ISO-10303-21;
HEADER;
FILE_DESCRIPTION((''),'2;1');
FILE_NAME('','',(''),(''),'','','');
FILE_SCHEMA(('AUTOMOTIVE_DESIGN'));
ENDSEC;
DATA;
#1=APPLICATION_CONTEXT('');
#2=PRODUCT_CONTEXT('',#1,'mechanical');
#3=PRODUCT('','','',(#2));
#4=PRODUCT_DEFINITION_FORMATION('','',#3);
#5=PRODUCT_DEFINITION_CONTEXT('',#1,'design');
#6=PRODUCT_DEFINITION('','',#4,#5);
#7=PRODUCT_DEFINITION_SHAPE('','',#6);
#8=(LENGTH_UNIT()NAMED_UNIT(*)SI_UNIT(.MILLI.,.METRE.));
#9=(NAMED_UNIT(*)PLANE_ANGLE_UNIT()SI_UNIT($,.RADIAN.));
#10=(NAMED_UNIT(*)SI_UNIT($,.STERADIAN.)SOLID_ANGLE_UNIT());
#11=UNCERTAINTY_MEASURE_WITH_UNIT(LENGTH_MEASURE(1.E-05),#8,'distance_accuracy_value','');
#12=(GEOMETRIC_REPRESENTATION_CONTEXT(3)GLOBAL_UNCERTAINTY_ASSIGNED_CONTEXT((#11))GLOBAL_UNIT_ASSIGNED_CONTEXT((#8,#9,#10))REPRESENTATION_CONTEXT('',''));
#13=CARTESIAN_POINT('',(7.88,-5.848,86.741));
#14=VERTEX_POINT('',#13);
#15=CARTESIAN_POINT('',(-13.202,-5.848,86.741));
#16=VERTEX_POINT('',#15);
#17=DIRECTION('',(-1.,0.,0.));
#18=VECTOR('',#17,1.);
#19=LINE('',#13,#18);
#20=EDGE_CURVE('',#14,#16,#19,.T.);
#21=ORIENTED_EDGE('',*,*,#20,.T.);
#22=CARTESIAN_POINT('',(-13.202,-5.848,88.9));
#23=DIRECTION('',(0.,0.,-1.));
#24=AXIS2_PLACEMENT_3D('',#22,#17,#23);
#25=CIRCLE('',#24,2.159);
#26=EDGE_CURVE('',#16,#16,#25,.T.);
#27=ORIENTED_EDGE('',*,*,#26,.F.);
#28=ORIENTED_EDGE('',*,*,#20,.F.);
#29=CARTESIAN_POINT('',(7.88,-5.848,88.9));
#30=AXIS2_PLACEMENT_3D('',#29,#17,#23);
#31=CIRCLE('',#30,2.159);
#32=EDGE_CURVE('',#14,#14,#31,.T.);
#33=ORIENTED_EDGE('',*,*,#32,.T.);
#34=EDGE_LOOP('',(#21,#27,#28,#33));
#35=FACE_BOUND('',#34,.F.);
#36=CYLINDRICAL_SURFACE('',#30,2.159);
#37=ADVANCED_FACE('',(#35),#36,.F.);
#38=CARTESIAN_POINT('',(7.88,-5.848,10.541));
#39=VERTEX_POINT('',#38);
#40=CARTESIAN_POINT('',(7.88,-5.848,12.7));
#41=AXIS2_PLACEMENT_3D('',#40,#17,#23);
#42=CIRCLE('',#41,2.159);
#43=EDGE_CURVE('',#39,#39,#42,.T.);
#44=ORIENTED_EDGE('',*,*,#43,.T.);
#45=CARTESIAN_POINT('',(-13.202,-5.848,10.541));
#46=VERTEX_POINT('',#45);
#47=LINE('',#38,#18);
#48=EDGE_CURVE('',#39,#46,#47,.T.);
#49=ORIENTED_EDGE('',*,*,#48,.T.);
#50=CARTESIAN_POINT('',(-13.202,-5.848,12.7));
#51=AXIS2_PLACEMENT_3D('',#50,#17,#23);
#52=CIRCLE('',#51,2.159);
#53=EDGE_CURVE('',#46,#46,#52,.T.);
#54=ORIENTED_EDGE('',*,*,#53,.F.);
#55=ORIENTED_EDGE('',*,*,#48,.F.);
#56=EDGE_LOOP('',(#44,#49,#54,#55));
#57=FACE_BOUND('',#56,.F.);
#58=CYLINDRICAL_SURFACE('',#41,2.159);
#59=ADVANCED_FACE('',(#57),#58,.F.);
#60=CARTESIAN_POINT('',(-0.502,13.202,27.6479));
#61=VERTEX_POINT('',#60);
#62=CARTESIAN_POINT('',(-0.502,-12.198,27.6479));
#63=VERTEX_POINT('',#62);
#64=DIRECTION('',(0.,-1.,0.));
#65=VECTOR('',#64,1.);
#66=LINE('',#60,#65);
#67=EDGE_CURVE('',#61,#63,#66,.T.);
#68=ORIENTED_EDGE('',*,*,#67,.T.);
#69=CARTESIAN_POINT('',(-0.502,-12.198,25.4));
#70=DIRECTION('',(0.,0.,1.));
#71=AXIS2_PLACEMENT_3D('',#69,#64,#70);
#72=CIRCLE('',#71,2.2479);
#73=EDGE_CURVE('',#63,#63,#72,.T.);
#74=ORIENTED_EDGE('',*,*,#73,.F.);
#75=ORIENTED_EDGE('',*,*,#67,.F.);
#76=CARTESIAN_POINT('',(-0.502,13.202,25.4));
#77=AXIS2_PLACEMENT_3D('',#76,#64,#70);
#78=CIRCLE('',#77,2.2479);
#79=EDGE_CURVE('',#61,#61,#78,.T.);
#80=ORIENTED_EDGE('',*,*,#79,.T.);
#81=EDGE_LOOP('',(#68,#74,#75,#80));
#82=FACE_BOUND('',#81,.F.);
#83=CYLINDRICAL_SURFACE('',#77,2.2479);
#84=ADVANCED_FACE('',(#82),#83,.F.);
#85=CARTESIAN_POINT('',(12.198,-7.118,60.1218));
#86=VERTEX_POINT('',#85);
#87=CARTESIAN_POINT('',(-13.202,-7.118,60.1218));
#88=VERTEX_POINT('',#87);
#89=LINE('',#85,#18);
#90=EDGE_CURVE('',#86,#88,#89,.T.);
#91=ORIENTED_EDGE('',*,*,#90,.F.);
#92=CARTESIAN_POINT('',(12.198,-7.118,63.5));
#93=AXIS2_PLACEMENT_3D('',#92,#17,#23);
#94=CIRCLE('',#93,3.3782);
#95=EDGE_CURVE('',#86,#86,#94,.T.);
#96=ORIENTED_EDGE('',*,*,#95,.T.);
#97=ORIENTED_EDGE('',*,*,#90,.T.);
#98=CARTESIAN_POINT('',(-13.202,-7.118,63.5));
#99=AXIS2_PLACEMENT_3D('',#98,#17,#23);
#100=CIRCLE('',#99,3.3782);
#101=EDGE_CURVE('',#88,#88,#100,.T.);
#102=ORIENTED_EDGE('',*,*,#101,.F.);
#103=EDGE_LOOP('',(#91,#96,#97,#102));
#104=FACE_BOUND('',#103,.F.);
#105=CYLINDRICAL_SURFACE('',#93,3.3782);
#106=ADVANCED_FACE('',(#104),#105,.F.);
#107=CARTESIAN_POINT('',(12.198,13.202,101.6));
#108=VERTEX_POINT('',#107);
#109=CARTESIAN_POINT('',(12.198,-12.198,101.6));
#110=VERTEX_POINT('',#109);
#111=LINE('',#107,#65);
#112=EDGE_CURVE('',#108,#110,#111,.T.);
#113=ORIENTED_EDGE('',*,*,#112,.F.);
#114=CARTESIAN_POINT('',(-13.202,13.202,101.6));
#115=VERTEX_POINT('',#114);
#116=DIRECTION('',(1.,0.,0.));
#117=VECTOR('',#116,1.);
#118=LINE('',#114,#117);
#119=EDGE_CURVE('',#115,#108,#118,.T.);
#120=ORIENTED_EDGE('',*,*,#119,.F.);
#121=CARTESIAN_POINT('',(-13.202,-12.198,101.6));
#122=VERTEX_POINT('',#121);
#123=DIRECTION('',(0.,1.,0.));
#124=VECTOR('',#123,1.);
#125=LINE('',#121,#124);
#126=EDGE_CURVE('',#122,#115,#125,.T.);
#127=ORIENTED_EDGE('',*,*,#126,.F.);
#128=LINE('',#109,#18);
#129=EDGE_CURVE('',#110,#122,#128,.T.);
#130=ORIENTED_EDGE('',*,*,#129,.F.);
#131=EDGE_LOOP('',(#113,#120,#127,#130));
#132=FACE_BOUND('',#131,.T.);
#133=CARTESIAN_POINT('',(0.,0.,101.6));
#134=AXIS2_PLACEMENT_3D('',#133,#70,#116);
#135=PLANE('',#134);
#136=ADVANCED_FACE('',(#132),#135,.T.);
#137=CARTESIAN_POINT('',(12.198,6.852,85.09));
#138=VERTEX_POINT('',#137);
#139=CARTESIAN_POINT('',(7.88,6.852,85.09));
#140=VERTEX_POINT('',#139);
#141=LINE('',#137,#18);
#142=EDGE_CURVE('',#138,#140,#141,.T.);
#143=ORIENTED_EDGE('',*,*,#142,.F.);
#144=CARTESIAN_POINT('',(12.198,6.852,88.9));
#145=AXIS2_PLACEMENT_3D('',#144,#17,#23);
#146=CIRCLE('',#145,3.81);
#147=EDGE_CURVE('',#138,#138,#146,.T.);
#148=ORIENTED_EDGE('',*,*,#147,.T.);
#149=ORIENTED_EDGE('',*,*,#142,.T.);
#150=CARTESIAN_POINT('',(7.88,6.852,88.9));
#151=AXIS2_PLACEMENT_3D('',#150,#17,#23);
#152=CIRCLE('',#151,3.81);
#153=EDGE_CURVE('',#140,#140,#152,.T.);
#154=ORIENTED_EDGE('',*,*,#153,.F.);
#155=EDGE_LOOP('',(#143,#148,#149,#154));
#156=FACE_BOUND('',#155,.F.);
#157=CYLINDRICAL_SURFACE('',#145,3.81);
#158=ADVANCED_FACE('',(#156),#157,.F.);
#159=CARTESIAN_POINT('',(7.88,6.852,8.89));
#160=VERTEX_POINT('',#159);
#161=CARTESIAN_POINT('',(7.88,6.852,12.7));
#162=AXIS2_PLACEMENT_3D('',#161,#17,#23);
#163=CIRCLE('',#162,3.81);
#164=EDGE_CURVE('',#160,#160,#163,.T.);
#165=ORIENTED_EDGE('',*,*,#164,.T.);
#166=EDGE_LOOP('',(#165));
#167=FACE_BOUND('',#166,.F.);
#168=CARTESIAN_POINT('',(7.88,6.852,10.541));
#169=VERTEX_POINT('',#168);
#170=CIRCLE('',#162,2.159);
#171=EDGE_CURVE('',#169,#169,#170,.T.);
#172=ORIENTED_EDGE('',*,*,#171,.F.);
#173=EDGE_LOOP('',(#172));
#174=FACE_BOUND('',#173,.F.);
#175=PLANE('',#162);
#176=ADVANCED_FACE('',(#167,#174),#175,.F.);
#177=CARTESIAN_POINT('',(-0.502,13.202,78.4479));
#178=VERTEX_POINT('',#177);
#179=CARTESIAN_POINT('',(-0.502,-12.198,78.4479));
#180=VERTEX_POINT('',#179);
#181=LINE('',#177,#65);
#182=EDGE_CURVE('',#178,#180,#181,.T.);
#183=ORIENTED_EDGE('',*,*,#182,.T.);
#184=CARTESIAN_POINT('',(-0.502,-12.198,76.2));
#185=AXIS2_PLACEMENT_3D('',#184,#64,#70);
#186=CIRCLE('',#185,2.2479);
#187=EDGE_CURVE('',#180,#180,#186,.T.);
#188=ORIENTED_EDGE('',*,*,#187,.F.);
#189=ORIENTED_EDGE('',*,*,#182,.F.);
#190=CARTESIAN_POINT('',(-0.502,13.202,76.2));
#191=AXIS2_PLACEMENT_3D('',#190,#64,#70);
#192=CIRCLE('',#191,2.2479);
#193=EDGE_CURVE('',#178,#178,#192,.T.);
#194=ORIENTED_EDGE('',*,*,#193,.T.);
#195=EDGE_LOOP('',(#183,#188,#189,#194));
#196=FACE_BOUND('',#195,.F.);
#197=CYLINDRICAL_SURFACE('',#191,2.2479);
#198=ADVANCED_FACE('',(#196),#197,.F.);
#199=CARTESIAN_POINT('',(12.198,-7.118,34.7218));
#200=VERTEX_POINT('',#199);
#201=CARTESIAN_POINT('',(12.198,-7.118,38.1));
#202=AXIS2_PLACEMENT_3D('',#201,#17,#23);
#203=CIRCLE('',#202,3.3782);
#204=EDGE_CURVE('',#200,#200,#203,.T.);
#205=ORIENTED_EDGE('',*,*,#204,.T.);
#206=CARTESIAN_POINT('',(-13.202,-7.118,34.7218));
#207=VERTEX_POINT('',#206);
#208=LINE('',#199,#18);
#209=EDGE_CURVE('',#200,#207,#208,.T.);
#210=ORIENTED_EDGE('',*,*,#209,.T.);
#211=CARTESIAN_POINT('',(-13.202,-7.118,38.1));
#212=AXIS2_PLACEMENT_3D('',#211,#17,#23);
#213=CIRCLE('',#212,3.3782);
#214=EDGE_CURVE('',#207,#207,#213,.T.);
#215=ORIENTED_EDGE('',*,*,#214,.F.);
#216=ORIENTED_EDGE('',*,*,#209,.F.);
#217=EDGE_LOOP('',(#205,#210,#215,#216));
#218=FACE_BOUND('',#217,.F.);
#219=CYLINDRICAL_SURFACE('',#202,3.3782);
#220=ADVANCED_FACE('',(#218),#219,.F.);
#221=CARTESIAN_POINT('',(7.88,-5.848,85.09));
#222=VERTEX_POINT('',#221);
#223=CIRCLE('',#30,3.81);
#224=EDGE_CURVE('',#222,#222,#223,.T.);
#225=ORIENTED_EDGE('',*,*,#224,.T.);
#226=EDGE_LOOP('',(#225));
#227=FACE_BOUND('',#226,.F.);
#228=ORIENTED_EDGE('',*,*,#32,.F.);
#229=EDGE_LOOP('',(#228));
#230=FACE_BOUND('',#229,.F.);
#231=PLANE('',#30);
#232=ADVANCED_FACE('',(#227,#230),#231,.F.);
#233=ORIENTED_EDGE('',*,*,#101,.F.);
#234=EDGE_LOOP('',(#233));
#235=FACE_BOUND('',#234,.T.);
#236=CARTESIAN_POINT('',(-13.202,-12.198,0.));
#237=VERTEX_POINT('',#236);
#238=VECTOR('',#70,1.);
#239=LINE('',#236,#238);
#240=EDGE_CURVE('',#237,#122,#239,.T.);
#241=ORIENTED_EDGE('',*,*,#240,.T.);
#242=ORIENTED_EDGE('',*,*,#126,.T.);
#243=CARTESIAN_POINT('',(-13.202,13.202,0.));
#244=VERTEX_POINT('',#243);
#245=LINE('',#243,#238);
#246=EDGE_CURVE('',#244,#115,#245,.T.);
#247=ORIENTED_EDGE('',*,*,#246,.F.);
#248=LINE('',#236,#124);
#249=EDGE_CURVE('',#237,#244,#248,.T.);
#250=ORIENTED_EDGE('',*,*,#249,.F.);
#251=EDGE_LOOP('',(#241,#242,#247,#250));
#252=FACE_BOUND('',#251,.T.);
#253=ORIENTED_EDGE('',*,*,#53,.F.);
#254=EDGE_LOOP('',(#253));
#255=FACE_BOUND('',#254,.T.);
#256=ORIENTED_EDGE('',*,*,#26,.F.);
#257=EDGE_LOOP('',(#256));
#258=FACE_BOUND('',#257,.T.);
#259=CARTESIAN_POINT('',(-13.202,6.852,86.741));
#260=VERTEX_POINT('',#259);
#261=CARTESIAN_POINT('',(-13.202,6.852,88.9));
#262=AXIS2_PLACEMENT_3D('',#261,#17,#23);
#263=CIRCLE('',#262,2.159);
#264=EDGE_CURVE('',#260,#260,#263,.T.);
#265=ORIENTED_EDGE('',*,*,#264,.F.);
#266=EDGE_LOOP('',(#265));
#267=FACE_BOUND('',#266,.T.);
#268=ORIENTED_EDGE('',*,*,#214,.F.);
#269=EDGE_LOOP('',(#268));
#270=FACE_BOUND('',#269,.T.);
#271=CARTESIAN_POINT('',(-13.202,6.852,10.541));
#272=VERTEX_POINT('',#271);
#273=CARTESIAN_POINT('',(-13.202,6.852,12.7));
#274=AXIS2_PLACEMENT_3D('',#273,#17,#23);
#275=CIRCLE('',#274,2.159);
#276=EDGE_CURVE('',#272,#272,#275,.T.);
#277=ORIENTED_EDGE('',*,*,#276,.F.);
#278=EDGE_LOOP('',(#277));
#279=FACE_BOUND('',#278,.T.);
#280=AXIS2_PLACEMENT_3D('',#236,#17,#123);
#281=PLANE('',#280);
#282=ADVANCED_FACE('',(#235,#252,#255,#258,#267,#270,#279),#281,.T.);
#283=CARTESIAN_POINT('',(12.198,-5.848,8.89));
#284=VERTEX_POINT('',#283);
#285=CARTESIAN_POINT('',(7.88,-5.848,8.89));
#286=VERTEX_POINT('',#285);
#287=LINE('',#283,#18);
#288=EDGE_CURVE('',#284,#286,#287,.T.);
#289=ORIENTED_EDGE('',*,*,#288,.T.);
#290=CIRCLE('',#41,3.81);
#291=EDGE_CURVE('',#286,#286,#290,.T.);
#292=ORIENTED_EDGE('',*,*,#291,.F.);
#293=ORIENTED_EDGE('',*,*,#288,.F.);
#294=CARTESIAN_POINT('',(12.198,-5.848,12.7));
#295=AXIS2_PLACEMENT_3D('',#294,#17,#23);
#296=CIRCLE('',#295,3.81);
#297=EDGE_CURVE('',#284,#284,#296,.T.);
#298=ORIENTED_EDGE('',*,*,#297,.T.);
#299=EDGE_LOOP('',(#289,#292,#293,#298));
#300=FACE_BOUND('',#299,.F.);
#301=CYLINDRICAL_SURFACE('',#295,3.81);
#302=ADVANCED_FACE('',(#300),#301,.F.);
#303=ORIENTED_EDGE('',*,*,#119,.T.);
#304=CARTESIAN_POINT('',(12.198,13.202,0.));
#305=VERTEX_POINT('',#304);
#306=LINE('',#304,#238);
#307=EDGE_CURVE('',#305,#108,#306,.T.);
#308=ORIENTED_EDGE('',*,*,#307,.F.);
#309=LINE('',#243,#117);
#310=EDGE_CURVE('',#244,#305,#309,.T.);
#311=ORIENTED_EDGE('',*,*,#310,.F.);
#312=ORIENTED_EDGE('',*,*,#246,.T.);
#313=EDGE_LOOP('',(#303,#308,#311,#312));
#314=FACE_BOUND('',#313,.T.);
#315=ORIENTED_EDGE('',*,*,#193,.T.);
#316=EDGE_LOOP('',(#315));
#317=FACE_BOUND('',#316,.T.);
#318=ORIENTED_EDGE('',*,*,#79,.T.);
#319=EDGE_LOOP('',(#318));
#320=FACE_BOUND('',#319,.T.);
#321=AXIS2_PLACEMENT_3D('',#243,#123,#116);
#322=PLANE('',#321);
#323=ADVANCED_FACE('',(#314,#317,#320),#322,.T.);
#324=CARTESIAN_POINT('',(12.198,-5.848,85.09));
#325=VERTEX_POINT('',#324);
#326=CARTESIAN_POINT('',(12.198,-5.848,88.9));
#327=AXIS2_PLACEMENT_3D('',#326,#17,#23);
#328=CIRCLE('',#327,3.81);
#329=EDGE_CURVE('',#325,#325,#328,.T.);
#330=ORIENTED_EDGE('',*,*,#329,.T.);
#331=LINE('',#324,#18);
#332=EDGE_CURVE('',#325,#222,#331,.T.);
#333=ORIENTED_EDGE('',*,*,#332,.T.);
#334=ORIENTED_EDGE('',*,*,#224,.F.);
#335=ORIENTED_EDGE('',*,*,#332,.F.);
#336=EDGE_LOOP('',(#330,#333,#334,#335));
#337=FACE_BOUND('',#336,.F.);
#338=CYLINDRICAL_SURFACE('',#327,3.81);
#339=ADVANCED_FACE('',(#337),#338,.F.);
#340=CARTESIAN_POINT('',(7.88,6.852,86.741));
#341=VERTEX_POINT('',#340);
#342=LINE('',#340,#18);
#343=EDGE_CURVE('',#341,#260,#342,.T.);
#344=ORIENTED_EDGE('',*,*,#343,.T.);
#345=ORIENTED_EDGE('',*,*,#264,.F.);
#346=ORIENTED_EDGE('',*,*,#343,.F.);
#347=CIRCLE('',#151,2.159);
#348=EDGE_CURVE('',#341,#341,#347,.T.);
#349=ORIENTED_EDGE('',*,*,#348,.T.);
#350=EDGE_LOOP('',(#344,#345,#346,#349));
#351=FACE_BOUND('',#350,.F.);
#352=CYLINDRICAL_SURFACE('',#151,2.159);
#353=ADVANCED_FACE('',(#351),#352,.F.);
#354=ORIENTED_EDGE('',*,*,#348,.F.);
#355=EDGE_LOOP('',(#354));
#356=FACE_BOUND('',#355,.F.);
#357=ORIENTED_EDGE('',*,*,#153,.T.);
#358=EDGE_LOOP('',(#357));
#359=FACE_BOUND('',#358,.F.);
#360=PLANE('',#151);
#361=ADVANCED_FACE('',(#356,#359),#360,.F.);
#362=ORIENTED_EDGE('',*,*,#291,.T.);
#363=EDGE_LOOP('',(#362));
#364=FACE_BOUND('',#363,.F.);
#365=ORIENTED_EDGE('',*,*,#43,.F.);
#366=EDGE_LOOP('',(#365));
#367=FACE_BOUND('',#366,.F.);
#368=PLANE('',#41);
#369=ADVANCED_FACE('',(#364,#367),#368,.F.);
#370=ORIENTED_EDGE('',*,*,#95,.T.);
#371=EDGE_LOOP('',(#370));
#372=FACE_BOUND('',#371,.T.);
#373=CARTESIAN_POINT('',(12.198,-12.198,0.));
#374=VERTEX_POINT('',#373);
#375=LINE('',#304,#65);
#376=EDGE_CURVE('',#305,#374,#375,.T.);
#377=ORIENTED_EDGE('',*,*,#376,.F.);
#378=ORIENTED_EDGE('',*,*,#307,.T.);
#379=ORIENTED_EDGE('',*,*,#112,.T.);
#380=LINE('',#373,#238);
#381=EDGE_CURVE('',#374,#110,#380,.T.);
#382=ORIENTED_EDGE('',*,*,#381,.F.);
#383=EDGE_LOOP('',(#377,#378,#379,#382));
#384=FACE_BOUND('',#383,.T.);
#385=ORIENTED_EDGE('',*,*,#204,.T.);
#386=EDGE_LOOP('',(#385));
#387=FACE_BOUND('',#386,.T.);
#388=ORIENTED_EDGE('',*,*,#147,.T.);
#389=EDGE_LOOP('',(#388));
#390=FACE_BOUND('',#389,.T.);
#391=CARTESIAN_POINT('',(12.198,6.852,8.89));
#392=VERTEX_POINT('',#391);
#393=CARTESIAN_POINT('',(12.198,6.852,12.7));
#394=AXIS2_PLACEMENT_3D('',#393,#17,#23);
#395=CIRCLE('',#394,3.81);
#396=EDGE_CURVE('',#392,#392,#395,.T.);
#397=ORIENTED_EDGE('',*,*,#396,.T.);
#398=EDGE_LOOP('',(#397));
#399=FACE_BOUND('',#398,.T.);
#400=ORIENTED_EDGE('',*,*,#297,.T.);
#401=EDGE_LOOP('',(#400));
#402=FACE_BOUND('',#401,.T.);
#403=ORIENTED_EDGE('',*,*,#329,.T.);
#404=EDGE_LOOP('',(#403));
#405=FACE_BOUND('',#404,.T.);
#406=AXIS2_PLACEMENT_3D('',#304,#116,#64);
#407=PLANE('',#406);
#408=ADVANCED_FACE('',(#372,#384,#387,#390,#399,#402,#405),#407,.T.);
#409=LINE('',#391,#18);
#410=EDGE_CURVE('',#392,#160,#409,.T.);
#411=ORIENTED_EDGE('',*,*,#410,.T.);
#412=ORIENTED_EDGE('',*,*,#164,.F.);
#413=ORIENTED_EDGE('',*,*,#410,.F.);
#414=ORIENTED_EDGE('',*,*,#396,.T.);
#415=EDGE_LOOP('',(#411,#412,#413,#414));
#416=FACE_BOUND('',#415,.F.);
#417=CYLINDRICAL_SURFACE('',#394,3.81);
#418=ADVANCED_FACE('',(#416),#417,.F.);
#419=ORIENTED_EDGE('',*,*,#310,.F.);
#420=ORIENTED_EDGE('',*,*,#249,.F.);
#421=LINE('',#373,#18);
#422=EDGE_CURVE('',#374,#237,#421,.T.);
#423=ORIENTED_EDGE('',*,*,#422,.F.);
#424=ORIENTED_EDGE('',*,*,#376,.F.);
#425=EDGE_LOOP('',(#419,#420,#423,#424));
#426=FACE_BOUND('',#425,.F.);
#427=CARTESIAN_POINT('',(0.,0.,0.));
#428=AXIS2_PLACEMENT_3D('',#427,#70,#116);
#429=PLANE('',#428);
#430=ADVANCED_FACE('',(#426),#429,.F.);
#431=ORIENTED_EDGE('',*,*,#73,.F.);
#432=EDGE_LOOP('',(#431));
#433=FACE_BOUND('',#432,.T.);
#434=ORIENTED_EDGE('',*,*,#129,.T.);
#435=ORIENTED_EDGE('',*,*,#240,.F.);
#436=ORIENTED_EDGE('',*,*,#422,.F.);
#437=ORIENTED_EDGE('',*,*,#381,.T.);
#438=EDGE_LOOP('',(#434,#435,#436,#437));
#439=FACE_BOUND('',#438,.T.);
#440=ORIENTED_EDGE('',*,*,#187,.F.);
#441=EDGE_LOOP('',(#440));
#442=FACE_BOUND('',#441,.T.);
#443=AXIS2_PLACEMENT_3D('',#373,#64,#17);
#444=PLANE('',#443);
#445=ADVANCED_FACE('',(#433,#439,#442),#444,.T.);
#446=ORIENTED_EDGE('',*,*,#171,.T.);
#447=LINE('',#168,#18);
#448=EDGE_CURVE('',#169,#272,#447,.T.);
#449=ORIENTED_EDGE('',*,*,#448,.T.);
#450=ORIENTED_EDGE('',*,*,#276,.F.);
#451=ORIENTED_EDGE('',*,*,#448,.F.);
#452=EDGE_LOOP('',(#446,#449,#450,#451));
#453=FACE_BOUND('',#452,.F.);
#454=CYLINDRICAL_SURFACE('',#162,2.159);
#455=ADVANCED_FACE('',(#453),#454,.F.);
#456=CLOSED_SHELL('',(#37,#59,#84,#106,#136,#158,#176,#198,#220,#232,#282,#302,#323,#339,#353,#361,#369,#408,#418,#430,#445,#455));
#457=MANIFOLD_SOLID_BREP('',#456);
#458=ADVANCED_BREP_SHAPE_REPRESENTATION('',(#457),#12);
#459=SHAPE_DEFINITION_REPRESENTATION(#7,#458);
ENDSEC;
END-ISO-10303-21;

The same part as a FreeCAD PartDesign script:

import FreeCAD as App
import Part
import Sketcher
Q = App.Units.Quantity

doc = App.newDocument("Part")
body = doc.addObject("PartDesign::Body", "Body")

# Sketch on XY plane
sketch1 = body.newObject("Sketcher::SketchObject", "Sketch")
sketch1.AttachmentSupport = (doc.getObject("XY_Plane"), [""])
sketch1.MapMode = "FlatFace"
sketch1.addGeometry([
    Part.LineSegment(App.Vector(12.198, 13.202, 0), App.Vector(-13.202, 13.202, 0)),
    Part.LineSegment(App.Vector(-13.202, 13.202, 0), App.Vector(-13.202, -12.198, 0)),
    Part.LineSegment(App.Vector(-13.202, -12.198, 0), App.Vector(12.198, -12.198, 0)),
    Part.LineSegment(App.Vector(12.198, -12.198, 0), App.Vector(12.198, 13.202, 0)),
], False)
sketch1.addConstraint([
    Sketcher.Constraint("Coincident", 0, 2, 1, 1),
    Sketcher.Constraint("Coincident", 1, 2, 2, 1),
    Sketcher.Constraint("Coincident", 2, 2, 3, 1),
    Sketcher.Constraint("Coincident", 3, 2, 0, 1),
    Sketcher.Constraint("Horizontal", 0),
    Sketcher.Constraint("Vertical", 1),
    Sketcher.Constraint("Horizontal", 2),
    Sketcher.Constraint("Vertical", 3),
    Sketcher.Constraint("Equal", 2, 1),
    Sketcher.Constraint("DistanceX", 0, 2, 0, 1, Q("1 in")),
    Sketcher.Constraint("DistanceX", 0, 2, -1, 1, Q("13.202 mm")),
    Sketcher.Constraint("DistanceY", -1, 1, 0, 2, Q("13.202 mm")),
])
pad1 = body.newObject("PartDesign::Pad", "Pad")
pad1.Profile = sketch1
pad1.Length = Q("4 in")

# Sketch on YZ plane
sketch2 = body.newObject("Sketcher::SketchObject", "Sketch001")
sketch2.AttachmentSupport = (doc.getObject("YZ_Plane"), [""])
sketch2.MapMode = "FlatFace"
sketch2.AttachmentOffset = App.Placement(App.Vector(0, 0, 12.198), App.Rotation())
sketch2.addGeometry([
    Part.Circle(App.Vector(6.852, 12.7, 0), App.Vector(0, 0, 1), 2.159),
    Part.Circle(App.Vector(-5.848, 12.7, 0), App.Vector(0, 0, 1), 2.159),
    Part.Circle(App.Vector(6.852, 88.9, 0), App.Vector(0, 0, 1), 2.159),
    Part.Circle(App.Vector(-5.848, 88.9, 0), App.Vector(0, 0, 1), 2.159),
], False)
sketch2.addConstraint([
    Sketcher.Constraint("Equal", 0, 1),
    Sketcher.Constraint("Equal", 1, 2),
    Sketcher.Constraint("Equal", 2, 3),
    Sketcher.Constraint("Horizontal", 0, 3, 1, 3),
    Sketcher.Constraint("Horizontal", 2, 3, 3, 3),
    Sketcher.Constraint("Vertical", 0, 3, 2, 3),
    Sketcher.Constraint("Vertical", 1, 3, 3, 3),
    Sketcher.Constraint("Diameter", 0, Q("0.17 in")),
    Sketcher.Constraint("DistanceY", 0, 3, 2, 3, Q("3 in")),
    Sketcher.Constraint("DistanceY", -1, 1, 0, 3, Q("0.5 in")),
    Sketcher.Constraint("DistanceX", 1, 3, 0, 3, Q("0.5 in")),
    Sketcher.Constraint("DistanceX", -1, 1, 0, 3, Q("6.852 mm")),
])
doc.recompute()
hole = body.newObject("PartDesign::Hole", "Hole")
hole.Profile = sketch2
hole.ThreadType = "None"
hole.Diameter = Q("0.17 in")
hole.DepthType = "ThroughAll"
hole.HoleCutType = "Counterbore"
hole.HoleCutDiameter = Q("0.3 in")
hole.HoleCutDepth = Q("0.17 in")

# Sketch on XZ plane
sketch3 = body.newObject("Sketcher::SketchObject", "Sketch002")
sketch3.AttachmentSupport = (doc.getObject("XZ_Plane"), [""])
sketch3.MapMode = "FlatFace"
sketch3.AttachmentOffset = App.Placement(App.Vector(0, 0, -13.202), App.Rotation())
sketch3.addGeometry([
    Part.Circle(App.Vector(-0.502, 25.4, 0), App.Vector(0, 0, 1), 2.2479),
    Part.Circle(App.Vector(-0.502, 76.2, 0), App.Vector(0, 0, 1), 2.2479),
], False)
sketch3.addConstraint([
    Sketcher.Constraint("Equal", 0, 1),
    Sketcher.Constraint("Vertical", 0, 3, 1, 3),
    Sketcher.Constraint("Diameter", 0, Q("0.177 in")),
    Sketcher.Constraint("DistanceY", -1, 1, 0, 3, Q("1 in")),
    Sketcher.Constraint("DistanceY", -1, 1, 1, 3, Q("3 in")),
    Sketcher.Constraint("DistanceX", 0, 3, -1, 1, Q("0.502 mm")),
])
doc.recompute()
hole2 = body.newObject("PartDesign::Hole", "Hole001")
hole2.Profile = sketch3
hole2.ThreadType = "None"
hole2.Diameter = Q("0.177 in")
hole2.DepthType = "ThroughAll"
hole2.Reversed = True

# Sketch on YZ plane
sketch4 = body.newObject("Sketcher::SketchObject", "Sketch003")
sketch4.AttachmentSupport = (doc.getObject("YZ_Plane"), [""])
sketch4.MapMode = "FlatFace"
sketch4.AttachmentOffset = App.Placement(App.Vector(0, 0, 12.198), App.Rotation())
sketch4.addGeometry([
    Part.Circle(App.Vector(-7.118, 63.5, 0), App.Vector(0, 0, 1), 3.3782),
    Part.Circle(App.Vector(-7.118, 38.1, 0), App.Vector(0, 0, 1), 3.3782),
], False)
sketch4.addConstraint([
    Sketcher.Constraint("Equal", 0, 1),
    Sketcher.Constraint("Vertical", 0, 3, 1, 3),
    Sketcher.Constraint("Diameter", 0, Q("0.266 in")),
    Sketcher.Constraint("DistanceY", 1, 3, 0, 3, Q("1 in")),
    Sketcher.Constraint("DistanceY", -1, 1, 0, 3, Q("2.5 in")),
    Sketcher.Constraint("DistanceX", 0, 3, -1, 1, Q("7.118 mm")),
])
doc.recompute()
hole3 = body.newObject("PartDesign::Hole", "Hole002")
hole3.Profile = sketch4
hole3.ThreadType = "None"
hole3.Diameter = Q("0.266 in")
hole3.DepthType = "ThroughAll"

doc.recompute()
